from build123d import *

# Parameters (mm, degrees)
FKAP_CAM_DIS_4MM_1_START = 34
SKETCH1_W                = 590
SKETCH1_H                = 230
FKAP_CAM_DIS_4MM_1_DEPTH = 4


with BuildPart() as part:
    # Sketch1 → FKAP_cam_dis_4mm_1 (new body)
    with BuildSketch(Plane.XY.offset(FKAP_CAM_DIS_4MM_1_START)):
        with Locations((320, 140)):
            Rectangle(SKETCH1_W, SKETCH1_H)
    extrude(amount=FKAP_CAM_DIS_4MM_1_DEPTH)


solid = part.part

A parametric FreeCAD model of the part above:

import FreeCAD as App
import Part
import Sketcher
from FreeCAD import Vector

doc = App.newDocument("Part")
body = doc.addObject("PartDesign::Body", "Body")

sketch1 = body.newObject("Sketcher::SketchObject", "Sketch")
sketch1.AttachmentSupport = (doc.getObject("XY_Plane"), [""])
sketch1.MapMode = "FlatFace"
sketch1.AttachmentOffset = App.Placement(Vector(0, 0, 34), App.Rotation())
sketch1.addGeometry([
    Part.LineSegment(Vector(25, 255, 0), Vector(25, 25, 0)),
    Part.LineSegment(Vector(25, 25, 0), Vector(615, 25, 0)),
    Part.LineSegment(Vector(615, 25, 0), Vector(615, 255, 0)),
    Part.LineSegment(Vector(615, 255, 0), Vector(25, 255, 0)),
], False)
sketch1.addConstraint([
    Sketcher.Constraint("Coincident", 0, 2, 1, 1),
    Sketcher.Constraint("Coincident", 1, 2, 2, 1),
    Sketcher.Constraint("Coincident", 2, 2, 3, 1),
    Sketcher.Constraint("Coincident", 3, 2, 0, 1),
    Sketcher.Constraint("Vertical", 0),
    Sketcher.Constraint("Horizontal", 1),
    Sketcher.Constraint("Vertical", 2),
    Sketcher.Constraint("Horizontal", 3),
    Sketcher.Constraint("DistanceX", 1, 1, 1, 2, 590.0),
    Sketcher.Constraint("DistanceY", 0, 2, 0, 1, 230.0),
    Sketcher.Constraint("DistanceX", -1, 1, 0, 2, 25.0),
    Sketcher.Constraint("DistanceY", -1, 1, 0, 2, 25.0),
])
pad1 = body.newObject("PartDesign::Pad", "Pad")
pad1.Profile = sketch1
pad1.Length = 4

doc.recompute()
